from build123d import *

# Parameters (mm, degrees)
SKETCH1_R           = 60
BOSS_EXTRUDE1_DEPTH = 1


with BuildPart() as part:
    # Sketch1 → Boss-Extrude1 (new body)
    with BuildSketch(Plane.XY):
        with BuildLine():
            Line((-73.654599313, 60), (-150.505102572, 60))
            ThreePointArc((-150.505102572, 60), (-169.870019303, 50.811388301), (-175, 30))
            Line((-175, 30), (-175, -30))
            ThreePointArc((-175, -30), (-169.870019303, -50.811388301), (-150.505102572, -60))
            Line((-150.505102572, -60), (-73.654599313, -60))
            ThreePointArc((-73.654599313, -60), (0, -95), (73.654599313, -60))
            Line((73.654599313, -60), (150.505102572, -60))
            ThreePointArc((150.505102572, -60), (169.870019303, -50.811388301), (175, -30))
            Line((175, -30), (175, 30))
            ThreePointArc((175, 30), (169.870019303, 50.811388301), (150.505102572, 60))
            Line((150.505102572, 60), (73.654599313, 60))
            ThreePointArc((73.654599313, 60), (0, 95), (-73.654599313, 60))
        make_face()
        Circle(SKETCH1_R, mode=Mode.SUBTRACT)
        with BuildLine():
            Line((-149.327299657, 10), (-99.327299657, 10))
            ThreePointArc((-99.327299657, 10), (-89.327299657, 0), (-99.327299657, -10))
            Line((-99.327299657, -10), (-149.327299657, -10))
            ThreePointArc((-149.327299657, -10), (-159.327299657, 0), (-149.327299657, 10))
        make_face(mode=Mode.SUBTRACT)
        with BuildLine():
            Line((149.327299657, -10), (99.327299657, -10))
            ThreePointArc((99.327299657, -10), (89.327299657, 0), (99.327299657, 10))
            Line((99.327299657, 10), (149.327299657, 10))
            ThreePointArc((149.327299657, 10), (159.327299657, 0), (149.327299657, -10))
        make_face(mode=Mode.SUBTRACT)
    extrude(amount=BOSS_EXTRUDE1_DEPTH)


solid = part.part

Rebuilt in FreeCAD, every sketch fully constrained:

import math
import FreeCAD as App
import Part
import Sketcher
from FreeCAD import Vector

doc = App.newDocument("Part")
body = doc.addObject("PartDesign::Body", "Body")

# Sketch on XY plane
sketch1 = doc.addObject("Sketcher::SketchObject", "Sketch")
body.addObject(sketch1)
sketch1.AttachmentSupport = (doc.XY_Plane, [""])
sketch1.MapMode = "FlatFace"
sketch1.addGeometry([
    Part.LineSegment(Vector(-74, 60, 0), Vector(-151, 60, 0)),  # 0
    Part.ArcOfCircle(Part.Circle(Vector(-151, 35, 0), Vector(0, 0, 1), 25), math.radians(90), math.radians(192)),  # 1
    Part.LineSegment(Vector(-175, 30, 0), Vector(-175, -30, 0)),  # 2
    Part.ArcOfCircle(Part.Circle(Vector(-151, -35, 0), Vector(0, 0, 1), 25), math.radians(168), math.radians(270)),  # 3
    Part.LineSegment(Vector(-151, -60, 0), Vector(-74, -60, 0)),  # 4
    Part.ArcOfCircle(Part.Circle(Vector(0, 0, 0), Vector(0, 0, 1), 95), math.radians(-141), math.radians(-39)),  # 5
    Part.LineSegment(Vector(74, -60, 0), Vector(151, -60, 0)),  # 6
    Part.ArcOfCircle(Part.Circle(Vector(151, -35, 0), Vector(0, 0, 1), 25), math.radians(-90), math.radians(12)),  # 7
    Part.LineSegment(Vector(175, -30, 0), Vector(175, 30, 0)),  # 8
    Part.ArcOfCircle(Part.Circle(Vector(151, 35, 0), Vector(0, 0, 1), 25), math.radians(-12), math.radians(90)),  # 9
    Part.LineSegment(Vector(151, 60, 0), Vector(74, 60, 0)),  # 10
    Part.ArcOfCircle(Part.Circle(Vector(0, 0, 0), Vector(0, 0, 1), 95), math.radians(39), math.radians(141)),  # 11
    Part.ArcOfCircle(Part.Circle(Vector(-149, 0, 0), Vector(0, 0, 1), 10), math.radians(90), math.radians(270)),  # 12
    Part.LineSegment(Vector(-149, 10, 0), Vector(-99, 10, 0)),  # 13
    Part.ArcOfCircle(Part.Circle(Vector(-99, 0, 0), Vector(0, 0, 1), 10), math.radians(-90), math.radians(90)),  # 14
    Part.LineSegment(Vector(-99, -10, 0), Vector(-149, -10, 0)),  # 15
    Part.Circle(Vector(0, 0, 0), Vector(0, 0, 1), 60),  # 16
    Part.ArcOfCircle(Part.Circle(Vector(149, 0, 0), Vector(0, 0, 1), 10), math.radians(-90), math.radians(90)),  # 17
    Part.LineSegment(Vector(149, -10, 0), Vector(99, -10, 0)),  # 18
    Part.ArcOfCircle(Part.Circle(Vector(99, 0, 0), Vector(0, 0, 1), 10), math.radians(90), math.radians(270)),  # 19
    Part.LineSegment(Vector(99, 10, 0), Vector(149, 10, 0)),  # 20
], False)
sketch1.addConstraint([
    Sketcher.Constraint("Tangent", 0, 2, 1, 1),
    Sketcher.Constraint("Coincident", 1, 2, 2, 1),
    Sketcher.Constraint("Coincident", 2, 2, 3, 1),
    Sketcher.Constraint("Tangent", 3, 2, 4, 1),
    Sketcher.Constraint("Coincident", 4, 2, 5, 1),
    Sketcher.Constraint("Coincident", 5, 2, 6, 1),
    Sketcher.Constraint("Tangent", 6, 2, 7, 1),
    Sketcher.Constraint("Coincident", 7, 2, 8, 1),
    Sketcher.Constraint("Coincident", 8, 2, 9, 1),
    Sketcher.Constraint("Tangent", 9, 2, 10, 1),
    Sketcher.Constraint("Coincident", 10, 2, 11, 1),
    Sketcher.Constraint("Coincident", 11, 2, 0, 1),
    Sketcher.Constraint("Tangent", 12, 1, 13, 1),
    Sketcher.Constraint("Tangent", 13, 2, 14, 2),
    Sketcher.Constraint("Tangent", 14, 1, 15, 1),
    Sketcher.Constraint("Tangent", 15, 2, 12, 2),
    Sketcher.Constraint("Tangent", 17, 1, 18, 1),
    Sketcher.Constraint("Tangent", 18, 2, 19, 2),
    Sketcher.Constraint("Tangent", 19, 1, 20, 1),
    Sketcher.Constraint("Tangent", 20, 2, 17, 2),
    Sketcher.Constraint("Horizontal", 0),
    Sketcher.Constraint("Vertical", 2),
    Sketcher.Constraint("Horizontal", 4),
    Sketcher.Constraint("Horizontal", 6),
    Sketcher.Constraint("Vertical", 8),
    Sketcher.Constraint("Horizontal", 10),
    Sketcher.Constraint("Horizontal", 13),
    Sketcher.Constraint("Horizontal", 15),
    Sketcher.Constraint("Horizontal", 18),
    Sketcher.Constraint("Horizontal", 20),
    Sketcher.Constraint("Coincident", 5, 3, -1, 1),
    Sketcher.Constraint("Coincident", 11, 3, -1, 1),
    Sketcher.Constraint("Coincident", 16, 3, -1, 1),
    Sketcher.Constraint("Equal", 1, 3),
    Sketcher.Constraint("Equal", 3, 7),
    Sketcher.Constraint("Equal", 7, 9),
    Sketcher.Constraint("Equal", 5, 11),
    Sketcher.Constraint("Equal", 14, 17),
    Sketcher.Constraint("Symmetric", 1, 3, 7, 3, -1, 1),
    Sketcher.Constraint("Symmetric", 3, 3, 9, 3, -1, 1),
    Sketcher.Constraint("Symmetric", 12, 3, 17, 3, -1, 1),
    Sketcher.Constraint("Symmetric", 3, 3, 7, 3, -2),
    Sketcher.Constraint("Symmetric", 14, 3, 19, 3, -2),
    Sketcher.Constraint("Horizontal", 2, 2, 7, 2),
    Sketcher.Constraint("Diameter", 16, 120.0),
    Sketcher.Constraint("Radius", 1, 25.0),
    Sketcher.Constraint("Radius", 5, 95.0),
    Sketcher.Constraint("Radius", 12, 10.0),
    Sketcher.Constraint("DistanceX", 13, 1, 13, 2, 50.0),
    Sketcher.Constraint("DistanceY", 2, 2, 2, 1, 60.0),
    Sketcher.Constraint("DistanceY", -1, 1, 1, 3, 35.0),
    Sketcher.Constraint("DistanceX", 1, 2, -1, 1, 175.0),
    Sketcher.Constraint("DistanceX", 12, 3, -1, 1, 149.3273),
])
pad1 = doc.addObject("PartDesign::Pad", "Pad")
body.addObject(pad1)
pad1.Profile = sketch1
pad1.Length = 1

doc.recompute()
